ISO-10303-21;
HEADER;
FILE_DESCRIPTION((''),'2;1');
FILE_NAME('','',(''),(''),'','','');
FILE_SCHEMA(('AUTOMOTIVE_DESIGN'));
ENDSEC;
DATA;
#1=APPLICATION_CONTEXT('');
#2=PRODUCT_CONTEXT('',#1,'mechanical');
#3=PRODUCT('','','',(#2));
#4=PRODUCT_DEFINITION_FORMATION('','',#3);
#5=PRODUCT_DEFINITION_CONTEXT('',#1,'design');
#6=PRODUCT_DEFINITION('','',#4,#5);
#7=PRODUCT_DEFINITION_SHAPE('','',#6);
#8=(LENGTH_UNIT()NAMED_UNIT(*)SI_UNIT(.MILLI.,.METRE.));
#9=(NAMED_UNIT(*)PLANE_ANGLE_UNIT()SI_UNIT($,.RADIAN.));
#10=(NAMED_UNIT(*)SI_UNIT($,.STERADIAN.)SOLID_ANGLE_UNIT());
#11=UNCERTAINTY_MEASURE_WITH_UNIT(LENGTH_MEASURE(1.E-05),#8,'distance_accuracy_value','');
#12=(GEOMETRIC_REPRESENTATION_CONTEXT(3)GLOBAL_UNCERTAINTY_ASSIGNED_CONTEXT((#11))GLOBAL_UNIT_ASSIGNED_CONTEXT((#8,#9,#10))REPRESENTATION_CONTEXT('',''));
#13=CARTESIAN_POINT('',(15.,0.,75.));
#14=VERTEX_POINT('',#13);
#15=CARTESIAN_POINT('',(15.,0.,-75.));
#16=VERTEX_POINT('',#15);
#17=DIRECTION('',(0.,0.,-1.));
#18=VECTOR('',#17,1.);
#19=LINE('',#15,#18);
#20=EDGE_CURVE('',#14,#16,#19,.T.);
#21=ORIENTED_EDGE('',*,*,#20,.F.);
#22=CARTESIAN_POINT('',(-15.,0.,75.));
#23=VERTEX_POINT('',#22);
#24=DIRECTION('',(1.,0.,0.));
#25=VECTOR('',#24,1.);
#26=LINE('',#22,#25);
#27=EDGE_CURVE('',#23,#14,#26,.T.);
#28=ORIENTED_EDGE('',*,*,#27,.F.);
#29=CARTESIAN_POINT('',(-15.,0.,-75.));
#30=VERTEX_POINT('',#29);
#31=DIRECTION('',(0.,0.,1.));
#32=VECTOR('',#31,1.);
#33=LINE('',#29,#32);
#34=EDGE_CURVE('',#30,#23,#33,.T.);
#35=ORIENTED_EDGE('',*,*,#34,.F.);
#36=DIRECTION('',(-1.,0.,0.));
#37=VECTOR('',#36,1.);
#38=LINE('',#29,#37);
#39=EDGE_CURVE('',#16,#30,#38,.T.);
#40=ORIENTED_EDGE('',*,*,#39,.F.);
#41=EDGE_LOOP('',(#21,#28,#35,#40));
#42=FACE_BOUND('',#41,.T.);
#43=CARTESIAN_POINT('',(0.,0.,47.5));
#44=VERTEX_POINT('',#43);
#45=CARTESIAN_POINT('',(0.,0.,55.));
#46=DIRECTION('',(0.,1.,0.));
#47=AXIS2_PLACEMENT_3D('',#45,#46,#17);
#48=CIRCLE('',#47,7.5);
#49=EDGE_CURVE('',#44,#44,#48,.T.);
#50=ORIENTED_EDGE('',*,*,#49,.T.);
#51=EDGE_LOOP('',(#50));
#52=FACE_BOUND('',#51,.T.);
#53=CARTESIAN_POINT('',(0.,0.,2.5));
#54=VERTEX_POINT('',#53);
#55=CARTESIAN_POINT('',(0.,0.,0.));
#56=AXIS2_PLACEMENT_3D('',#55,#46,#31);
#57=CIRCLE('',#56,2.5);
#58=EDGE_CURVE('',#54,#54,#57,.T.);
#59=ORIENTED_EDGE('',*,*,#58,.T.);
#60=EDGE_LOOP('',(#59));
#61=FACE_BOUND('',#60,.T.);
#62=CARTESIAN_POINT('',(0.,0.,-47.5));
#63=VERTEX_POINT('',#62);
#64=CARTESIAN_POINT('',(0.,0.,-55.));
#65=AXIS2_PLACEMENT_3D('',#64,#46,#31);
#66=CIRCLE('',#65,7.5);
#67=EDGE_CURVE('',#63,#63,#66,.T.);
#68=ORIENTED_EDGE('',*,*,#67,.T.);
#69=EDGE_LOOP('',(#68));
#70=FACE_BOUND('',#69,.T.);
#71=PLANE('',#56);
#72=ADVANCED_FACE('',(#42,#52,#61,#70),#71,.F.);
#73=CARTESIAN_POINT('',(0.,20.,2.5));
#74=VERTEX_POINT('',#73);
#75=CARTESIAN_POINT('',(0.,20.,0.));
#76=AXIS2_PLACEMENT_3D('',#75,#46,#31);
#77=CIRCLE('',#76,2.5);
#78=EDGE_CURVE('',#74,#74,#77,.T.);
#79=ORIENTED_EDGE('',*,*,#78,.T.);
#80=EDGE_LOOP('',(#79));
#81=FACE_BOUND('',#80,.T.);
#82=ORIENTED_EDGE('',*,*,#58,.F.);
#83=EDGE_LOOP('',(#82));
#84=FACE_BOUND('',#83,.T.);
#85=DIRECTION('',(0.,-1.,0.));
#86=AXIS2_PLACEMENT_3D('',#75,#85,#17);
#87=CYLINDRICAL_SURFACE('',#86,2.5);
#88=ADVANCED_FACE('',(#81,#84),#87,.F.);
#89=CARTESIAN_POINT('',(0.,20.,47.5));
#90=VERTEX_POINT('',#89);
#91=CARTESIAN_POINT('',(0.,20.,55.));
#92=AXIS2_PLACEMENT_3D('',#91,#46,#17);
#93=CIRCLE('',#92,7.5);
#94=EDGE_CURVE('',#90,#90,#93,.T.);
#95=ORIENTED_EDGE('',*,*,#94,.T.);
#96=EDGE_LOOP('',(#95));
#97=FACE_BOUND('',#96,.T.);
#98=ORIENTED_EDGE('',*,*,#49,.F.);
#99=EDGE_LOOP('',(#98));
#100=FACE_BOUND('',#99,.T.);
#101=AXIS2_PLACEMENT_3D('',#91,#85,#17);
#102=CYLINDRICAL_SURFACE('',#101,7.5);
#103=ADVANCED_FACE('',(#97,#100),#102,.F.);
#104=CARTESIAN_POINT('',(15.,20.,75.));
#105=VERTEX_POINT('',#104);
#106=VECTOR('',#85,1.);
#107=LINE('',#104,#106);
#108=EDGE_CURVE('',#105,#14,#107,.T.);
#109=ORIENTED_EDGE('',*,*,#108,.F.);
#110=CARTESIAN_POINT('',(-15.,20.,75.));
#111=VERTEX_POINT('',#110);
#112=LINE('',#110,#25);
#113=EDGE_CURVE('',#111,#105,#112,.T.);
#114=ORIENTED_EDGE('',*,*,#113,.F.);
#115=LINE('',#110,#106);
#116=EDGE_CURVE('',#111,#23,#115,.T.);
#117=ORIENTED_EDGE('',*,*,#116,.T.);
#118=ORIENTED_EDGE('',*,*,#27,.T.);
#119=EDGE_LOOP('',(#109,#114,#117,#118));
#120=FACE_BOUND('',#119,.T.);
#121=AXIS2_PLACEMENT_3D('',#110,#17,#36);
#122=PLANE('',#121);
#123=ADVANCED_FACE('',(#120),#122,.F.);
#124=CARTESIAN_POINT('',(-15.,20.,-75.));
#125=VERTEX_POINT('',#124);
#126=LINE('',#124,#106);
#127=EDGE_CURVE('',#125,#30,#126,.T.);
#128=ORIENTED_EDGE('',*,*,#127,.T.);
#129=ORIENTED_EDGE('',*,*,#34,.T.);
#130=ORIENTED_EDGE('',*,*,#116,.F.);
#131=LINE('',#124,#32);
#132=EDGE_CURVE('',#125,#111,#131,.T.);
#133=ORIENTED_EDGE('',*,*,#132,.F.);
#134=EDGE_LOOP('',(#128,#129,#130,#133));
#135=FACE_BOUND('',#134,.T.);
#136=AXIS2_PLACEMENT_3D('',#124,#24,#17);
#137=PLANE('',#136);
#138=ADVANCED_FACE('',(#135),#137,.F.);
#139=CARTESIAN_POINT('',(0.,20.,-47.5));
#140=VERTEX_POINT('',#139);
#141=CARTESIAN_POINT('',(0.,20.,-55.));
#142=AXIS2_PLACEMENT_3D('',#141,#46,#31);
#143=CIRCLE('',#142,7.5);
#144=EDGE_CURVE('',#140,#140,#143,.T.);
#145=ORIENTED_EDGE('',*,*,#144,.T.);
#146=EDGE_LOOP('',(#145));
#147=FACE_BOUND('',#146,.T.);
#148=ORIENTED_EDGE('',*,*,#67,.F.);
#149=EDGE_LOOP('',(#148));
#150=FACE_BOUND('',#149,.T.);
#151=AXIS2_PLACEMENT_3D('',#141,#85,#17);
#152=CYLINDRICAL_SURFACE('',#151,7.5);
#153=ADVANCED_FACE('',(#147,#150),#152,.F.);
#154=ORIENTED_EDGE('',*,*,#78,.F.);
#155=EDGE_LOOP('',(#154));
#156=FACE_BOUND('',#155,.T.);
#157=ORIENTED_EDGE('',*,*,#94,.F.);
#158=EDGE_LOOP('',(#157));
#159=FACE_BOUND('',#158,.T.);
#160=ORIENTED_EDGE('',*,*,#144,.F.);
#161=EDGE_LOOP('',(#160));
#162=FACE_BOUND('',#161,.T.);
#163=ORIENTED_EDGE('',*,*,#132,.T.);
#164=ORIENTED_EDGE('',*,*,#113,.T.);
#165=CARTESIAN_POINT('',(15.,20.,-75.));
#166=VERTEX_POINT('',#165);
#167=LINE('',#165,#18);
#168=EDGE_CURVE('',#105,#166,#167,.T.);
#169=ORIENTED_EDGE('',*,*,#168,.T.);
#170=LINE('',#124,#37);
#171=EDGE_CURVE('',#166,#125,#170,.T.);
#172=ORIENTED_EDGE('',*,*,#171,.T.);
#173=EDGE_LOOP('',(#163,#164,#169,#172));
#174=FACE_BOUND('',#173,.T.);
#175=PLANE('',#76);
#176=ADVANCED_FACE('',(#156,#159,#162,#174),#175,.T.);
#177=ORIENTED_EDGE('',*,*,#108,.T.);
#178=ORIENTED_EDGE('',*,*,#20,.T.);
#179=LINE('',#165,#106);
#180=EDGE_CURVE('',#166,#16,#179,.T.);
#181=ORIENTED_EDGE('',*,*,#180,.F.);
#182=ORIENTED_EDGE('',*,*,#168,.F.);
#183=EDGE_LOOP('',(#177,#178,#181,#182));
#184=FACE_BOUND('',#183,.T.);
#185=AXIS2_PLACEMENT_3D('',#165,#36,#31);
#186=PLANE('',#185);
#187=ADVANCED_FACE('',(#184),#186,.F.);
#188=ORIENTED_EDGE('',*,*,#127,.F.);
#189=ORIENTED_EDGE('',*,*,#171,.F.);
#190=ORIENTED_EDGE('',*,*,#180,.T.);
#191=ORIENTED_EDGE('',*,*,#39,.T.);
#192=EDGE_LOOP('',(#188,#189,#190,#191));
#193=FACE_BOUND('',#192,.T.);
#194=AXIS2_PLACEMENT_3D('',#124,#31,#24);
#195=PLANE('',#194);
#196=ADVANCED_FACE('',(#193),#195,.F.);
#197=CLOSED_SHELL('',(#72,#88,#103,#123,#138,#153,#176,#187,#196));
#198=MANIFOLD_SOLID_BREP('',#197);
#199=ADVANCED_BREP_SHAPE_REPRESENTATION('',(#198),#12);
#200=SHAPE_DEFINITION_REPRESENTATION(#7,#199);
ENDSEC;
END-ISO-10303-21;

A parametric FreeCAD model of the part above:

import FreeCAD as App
import Part
import Sketcher


def add_polygon(sketch, points):
    """Adds a closed chain of lines whose ends are joined by coincident constraints."""
    first, n = sketch.GeometryCount, len(points)
    for a, b in zip(points, points[1:] + points[:1]):
        sketch.addGeometry(Part.LineSegment(App.Vector(*a, 0), App.Vector(*b, 0)), False)
    for i in range(n):
        sketch.addConstraint(Sketcher.Constraint("Coincident", first + i, 2, first + (i + 1) % n, 1))

doc = App.newDocument("Part")
params = doc.addObject("Spreadsheet::Sheet", "Params")
for row, (alias, value) in enumerate([
    ("sketch1_diameter", "15 mm"),
    ("sketch1_diameter2", "5 mm"),
    ("sketch1_width", "30 mm"),
    ("sketch1_height", "150 mm"),
    ("pad1_length", "20 mm"),
], start=1):
    params.set(f"A{row}", alias)
    params.set(f"B{row}", "=" + value)
    params.setAlias(f"B{row}", alias)

body = doc.addObject("PartDesign::Body", "Body")

# Sketch on XZ plane
sketch1 = body.newObject("Sketcher::SketchObject", "Sketch")
sketch1.AttachmentSupport = (doc.getObject("XZ_Plane"), [""])
sketch1.MapMode = "FlatFace"
add_polygon(sketch1, [(-15, -75), (-15, 75), (15, 75), (15, -75)])  # lines 0-3
sketch1.addGeometry(Part.Circle(App.Vector(0, 55, 0), App.Vector(0, 0, 1), 7.5), False)  # 4
sketch1.addGeometry(Part.Circle(App.Vector(0, 0, 0), App.Vector(0, 0, 1), 2.5), False)  # 5
sketch1.addGeometry(Part.Circle(App.Vector(0, -55, 0), App.Vector(0, 0, 1), 7.5), False)  # 6
sketch1.addConstraint([
    Sketcher.Constraint("Vertical", 0),
    Sketcher.Constraint("Horizontal", 1),
    Sketcher.Constraint("Vertical", 2),
    Sketcher.Constraint("Horizontal", 3),
    Sketcher.Constraint("Coincident", 5, 3, -1, 1),
    Sketcher.Constraint("Equal", 4, 6),
    Sketcher.Constraint("Symmetric", 4, 3, 6, 3, -1, 1),
    Sketcher.Constraint("Symmetric", 0, 2, 2, 2, -1, 1),
    Sketcher.Constraint("PointOnObject", 4, 3, -2),
    Sketcher.Constraint("Diameter", 4, 15.0),
    Sketcher.Constraint("Diameter", 5, 5.0),
    Sketcher.Constraint("DistanceX", 1, 1, 1, 2, 30.0),
    Sketcher.Constraint("DistanceY", 0, 1, 0, 2, 150.0),
    Sketcher.Constraint("DistanceY", -1, 1, 4, 3, 55.0),
])
sketch1.setExpression("Constraints[13]", "Params.sketch1_diameter")
sketch1.setExpression("Constraints[14]", "Params.sketch1_diameter2")
sketch1.setExpression("Constraints[15]", "Params.sketch1_width")
sketch1.setExpression("Constraints[16]", "Params.sketch1_height")
pad1 = body.newObject("PartDesign::Pad", "Pad")
pad1.Profile = sketch1
pad1.setExpression("Length", "Params.pad1_length")
pad1.Reversed = True

doc.recompute()
